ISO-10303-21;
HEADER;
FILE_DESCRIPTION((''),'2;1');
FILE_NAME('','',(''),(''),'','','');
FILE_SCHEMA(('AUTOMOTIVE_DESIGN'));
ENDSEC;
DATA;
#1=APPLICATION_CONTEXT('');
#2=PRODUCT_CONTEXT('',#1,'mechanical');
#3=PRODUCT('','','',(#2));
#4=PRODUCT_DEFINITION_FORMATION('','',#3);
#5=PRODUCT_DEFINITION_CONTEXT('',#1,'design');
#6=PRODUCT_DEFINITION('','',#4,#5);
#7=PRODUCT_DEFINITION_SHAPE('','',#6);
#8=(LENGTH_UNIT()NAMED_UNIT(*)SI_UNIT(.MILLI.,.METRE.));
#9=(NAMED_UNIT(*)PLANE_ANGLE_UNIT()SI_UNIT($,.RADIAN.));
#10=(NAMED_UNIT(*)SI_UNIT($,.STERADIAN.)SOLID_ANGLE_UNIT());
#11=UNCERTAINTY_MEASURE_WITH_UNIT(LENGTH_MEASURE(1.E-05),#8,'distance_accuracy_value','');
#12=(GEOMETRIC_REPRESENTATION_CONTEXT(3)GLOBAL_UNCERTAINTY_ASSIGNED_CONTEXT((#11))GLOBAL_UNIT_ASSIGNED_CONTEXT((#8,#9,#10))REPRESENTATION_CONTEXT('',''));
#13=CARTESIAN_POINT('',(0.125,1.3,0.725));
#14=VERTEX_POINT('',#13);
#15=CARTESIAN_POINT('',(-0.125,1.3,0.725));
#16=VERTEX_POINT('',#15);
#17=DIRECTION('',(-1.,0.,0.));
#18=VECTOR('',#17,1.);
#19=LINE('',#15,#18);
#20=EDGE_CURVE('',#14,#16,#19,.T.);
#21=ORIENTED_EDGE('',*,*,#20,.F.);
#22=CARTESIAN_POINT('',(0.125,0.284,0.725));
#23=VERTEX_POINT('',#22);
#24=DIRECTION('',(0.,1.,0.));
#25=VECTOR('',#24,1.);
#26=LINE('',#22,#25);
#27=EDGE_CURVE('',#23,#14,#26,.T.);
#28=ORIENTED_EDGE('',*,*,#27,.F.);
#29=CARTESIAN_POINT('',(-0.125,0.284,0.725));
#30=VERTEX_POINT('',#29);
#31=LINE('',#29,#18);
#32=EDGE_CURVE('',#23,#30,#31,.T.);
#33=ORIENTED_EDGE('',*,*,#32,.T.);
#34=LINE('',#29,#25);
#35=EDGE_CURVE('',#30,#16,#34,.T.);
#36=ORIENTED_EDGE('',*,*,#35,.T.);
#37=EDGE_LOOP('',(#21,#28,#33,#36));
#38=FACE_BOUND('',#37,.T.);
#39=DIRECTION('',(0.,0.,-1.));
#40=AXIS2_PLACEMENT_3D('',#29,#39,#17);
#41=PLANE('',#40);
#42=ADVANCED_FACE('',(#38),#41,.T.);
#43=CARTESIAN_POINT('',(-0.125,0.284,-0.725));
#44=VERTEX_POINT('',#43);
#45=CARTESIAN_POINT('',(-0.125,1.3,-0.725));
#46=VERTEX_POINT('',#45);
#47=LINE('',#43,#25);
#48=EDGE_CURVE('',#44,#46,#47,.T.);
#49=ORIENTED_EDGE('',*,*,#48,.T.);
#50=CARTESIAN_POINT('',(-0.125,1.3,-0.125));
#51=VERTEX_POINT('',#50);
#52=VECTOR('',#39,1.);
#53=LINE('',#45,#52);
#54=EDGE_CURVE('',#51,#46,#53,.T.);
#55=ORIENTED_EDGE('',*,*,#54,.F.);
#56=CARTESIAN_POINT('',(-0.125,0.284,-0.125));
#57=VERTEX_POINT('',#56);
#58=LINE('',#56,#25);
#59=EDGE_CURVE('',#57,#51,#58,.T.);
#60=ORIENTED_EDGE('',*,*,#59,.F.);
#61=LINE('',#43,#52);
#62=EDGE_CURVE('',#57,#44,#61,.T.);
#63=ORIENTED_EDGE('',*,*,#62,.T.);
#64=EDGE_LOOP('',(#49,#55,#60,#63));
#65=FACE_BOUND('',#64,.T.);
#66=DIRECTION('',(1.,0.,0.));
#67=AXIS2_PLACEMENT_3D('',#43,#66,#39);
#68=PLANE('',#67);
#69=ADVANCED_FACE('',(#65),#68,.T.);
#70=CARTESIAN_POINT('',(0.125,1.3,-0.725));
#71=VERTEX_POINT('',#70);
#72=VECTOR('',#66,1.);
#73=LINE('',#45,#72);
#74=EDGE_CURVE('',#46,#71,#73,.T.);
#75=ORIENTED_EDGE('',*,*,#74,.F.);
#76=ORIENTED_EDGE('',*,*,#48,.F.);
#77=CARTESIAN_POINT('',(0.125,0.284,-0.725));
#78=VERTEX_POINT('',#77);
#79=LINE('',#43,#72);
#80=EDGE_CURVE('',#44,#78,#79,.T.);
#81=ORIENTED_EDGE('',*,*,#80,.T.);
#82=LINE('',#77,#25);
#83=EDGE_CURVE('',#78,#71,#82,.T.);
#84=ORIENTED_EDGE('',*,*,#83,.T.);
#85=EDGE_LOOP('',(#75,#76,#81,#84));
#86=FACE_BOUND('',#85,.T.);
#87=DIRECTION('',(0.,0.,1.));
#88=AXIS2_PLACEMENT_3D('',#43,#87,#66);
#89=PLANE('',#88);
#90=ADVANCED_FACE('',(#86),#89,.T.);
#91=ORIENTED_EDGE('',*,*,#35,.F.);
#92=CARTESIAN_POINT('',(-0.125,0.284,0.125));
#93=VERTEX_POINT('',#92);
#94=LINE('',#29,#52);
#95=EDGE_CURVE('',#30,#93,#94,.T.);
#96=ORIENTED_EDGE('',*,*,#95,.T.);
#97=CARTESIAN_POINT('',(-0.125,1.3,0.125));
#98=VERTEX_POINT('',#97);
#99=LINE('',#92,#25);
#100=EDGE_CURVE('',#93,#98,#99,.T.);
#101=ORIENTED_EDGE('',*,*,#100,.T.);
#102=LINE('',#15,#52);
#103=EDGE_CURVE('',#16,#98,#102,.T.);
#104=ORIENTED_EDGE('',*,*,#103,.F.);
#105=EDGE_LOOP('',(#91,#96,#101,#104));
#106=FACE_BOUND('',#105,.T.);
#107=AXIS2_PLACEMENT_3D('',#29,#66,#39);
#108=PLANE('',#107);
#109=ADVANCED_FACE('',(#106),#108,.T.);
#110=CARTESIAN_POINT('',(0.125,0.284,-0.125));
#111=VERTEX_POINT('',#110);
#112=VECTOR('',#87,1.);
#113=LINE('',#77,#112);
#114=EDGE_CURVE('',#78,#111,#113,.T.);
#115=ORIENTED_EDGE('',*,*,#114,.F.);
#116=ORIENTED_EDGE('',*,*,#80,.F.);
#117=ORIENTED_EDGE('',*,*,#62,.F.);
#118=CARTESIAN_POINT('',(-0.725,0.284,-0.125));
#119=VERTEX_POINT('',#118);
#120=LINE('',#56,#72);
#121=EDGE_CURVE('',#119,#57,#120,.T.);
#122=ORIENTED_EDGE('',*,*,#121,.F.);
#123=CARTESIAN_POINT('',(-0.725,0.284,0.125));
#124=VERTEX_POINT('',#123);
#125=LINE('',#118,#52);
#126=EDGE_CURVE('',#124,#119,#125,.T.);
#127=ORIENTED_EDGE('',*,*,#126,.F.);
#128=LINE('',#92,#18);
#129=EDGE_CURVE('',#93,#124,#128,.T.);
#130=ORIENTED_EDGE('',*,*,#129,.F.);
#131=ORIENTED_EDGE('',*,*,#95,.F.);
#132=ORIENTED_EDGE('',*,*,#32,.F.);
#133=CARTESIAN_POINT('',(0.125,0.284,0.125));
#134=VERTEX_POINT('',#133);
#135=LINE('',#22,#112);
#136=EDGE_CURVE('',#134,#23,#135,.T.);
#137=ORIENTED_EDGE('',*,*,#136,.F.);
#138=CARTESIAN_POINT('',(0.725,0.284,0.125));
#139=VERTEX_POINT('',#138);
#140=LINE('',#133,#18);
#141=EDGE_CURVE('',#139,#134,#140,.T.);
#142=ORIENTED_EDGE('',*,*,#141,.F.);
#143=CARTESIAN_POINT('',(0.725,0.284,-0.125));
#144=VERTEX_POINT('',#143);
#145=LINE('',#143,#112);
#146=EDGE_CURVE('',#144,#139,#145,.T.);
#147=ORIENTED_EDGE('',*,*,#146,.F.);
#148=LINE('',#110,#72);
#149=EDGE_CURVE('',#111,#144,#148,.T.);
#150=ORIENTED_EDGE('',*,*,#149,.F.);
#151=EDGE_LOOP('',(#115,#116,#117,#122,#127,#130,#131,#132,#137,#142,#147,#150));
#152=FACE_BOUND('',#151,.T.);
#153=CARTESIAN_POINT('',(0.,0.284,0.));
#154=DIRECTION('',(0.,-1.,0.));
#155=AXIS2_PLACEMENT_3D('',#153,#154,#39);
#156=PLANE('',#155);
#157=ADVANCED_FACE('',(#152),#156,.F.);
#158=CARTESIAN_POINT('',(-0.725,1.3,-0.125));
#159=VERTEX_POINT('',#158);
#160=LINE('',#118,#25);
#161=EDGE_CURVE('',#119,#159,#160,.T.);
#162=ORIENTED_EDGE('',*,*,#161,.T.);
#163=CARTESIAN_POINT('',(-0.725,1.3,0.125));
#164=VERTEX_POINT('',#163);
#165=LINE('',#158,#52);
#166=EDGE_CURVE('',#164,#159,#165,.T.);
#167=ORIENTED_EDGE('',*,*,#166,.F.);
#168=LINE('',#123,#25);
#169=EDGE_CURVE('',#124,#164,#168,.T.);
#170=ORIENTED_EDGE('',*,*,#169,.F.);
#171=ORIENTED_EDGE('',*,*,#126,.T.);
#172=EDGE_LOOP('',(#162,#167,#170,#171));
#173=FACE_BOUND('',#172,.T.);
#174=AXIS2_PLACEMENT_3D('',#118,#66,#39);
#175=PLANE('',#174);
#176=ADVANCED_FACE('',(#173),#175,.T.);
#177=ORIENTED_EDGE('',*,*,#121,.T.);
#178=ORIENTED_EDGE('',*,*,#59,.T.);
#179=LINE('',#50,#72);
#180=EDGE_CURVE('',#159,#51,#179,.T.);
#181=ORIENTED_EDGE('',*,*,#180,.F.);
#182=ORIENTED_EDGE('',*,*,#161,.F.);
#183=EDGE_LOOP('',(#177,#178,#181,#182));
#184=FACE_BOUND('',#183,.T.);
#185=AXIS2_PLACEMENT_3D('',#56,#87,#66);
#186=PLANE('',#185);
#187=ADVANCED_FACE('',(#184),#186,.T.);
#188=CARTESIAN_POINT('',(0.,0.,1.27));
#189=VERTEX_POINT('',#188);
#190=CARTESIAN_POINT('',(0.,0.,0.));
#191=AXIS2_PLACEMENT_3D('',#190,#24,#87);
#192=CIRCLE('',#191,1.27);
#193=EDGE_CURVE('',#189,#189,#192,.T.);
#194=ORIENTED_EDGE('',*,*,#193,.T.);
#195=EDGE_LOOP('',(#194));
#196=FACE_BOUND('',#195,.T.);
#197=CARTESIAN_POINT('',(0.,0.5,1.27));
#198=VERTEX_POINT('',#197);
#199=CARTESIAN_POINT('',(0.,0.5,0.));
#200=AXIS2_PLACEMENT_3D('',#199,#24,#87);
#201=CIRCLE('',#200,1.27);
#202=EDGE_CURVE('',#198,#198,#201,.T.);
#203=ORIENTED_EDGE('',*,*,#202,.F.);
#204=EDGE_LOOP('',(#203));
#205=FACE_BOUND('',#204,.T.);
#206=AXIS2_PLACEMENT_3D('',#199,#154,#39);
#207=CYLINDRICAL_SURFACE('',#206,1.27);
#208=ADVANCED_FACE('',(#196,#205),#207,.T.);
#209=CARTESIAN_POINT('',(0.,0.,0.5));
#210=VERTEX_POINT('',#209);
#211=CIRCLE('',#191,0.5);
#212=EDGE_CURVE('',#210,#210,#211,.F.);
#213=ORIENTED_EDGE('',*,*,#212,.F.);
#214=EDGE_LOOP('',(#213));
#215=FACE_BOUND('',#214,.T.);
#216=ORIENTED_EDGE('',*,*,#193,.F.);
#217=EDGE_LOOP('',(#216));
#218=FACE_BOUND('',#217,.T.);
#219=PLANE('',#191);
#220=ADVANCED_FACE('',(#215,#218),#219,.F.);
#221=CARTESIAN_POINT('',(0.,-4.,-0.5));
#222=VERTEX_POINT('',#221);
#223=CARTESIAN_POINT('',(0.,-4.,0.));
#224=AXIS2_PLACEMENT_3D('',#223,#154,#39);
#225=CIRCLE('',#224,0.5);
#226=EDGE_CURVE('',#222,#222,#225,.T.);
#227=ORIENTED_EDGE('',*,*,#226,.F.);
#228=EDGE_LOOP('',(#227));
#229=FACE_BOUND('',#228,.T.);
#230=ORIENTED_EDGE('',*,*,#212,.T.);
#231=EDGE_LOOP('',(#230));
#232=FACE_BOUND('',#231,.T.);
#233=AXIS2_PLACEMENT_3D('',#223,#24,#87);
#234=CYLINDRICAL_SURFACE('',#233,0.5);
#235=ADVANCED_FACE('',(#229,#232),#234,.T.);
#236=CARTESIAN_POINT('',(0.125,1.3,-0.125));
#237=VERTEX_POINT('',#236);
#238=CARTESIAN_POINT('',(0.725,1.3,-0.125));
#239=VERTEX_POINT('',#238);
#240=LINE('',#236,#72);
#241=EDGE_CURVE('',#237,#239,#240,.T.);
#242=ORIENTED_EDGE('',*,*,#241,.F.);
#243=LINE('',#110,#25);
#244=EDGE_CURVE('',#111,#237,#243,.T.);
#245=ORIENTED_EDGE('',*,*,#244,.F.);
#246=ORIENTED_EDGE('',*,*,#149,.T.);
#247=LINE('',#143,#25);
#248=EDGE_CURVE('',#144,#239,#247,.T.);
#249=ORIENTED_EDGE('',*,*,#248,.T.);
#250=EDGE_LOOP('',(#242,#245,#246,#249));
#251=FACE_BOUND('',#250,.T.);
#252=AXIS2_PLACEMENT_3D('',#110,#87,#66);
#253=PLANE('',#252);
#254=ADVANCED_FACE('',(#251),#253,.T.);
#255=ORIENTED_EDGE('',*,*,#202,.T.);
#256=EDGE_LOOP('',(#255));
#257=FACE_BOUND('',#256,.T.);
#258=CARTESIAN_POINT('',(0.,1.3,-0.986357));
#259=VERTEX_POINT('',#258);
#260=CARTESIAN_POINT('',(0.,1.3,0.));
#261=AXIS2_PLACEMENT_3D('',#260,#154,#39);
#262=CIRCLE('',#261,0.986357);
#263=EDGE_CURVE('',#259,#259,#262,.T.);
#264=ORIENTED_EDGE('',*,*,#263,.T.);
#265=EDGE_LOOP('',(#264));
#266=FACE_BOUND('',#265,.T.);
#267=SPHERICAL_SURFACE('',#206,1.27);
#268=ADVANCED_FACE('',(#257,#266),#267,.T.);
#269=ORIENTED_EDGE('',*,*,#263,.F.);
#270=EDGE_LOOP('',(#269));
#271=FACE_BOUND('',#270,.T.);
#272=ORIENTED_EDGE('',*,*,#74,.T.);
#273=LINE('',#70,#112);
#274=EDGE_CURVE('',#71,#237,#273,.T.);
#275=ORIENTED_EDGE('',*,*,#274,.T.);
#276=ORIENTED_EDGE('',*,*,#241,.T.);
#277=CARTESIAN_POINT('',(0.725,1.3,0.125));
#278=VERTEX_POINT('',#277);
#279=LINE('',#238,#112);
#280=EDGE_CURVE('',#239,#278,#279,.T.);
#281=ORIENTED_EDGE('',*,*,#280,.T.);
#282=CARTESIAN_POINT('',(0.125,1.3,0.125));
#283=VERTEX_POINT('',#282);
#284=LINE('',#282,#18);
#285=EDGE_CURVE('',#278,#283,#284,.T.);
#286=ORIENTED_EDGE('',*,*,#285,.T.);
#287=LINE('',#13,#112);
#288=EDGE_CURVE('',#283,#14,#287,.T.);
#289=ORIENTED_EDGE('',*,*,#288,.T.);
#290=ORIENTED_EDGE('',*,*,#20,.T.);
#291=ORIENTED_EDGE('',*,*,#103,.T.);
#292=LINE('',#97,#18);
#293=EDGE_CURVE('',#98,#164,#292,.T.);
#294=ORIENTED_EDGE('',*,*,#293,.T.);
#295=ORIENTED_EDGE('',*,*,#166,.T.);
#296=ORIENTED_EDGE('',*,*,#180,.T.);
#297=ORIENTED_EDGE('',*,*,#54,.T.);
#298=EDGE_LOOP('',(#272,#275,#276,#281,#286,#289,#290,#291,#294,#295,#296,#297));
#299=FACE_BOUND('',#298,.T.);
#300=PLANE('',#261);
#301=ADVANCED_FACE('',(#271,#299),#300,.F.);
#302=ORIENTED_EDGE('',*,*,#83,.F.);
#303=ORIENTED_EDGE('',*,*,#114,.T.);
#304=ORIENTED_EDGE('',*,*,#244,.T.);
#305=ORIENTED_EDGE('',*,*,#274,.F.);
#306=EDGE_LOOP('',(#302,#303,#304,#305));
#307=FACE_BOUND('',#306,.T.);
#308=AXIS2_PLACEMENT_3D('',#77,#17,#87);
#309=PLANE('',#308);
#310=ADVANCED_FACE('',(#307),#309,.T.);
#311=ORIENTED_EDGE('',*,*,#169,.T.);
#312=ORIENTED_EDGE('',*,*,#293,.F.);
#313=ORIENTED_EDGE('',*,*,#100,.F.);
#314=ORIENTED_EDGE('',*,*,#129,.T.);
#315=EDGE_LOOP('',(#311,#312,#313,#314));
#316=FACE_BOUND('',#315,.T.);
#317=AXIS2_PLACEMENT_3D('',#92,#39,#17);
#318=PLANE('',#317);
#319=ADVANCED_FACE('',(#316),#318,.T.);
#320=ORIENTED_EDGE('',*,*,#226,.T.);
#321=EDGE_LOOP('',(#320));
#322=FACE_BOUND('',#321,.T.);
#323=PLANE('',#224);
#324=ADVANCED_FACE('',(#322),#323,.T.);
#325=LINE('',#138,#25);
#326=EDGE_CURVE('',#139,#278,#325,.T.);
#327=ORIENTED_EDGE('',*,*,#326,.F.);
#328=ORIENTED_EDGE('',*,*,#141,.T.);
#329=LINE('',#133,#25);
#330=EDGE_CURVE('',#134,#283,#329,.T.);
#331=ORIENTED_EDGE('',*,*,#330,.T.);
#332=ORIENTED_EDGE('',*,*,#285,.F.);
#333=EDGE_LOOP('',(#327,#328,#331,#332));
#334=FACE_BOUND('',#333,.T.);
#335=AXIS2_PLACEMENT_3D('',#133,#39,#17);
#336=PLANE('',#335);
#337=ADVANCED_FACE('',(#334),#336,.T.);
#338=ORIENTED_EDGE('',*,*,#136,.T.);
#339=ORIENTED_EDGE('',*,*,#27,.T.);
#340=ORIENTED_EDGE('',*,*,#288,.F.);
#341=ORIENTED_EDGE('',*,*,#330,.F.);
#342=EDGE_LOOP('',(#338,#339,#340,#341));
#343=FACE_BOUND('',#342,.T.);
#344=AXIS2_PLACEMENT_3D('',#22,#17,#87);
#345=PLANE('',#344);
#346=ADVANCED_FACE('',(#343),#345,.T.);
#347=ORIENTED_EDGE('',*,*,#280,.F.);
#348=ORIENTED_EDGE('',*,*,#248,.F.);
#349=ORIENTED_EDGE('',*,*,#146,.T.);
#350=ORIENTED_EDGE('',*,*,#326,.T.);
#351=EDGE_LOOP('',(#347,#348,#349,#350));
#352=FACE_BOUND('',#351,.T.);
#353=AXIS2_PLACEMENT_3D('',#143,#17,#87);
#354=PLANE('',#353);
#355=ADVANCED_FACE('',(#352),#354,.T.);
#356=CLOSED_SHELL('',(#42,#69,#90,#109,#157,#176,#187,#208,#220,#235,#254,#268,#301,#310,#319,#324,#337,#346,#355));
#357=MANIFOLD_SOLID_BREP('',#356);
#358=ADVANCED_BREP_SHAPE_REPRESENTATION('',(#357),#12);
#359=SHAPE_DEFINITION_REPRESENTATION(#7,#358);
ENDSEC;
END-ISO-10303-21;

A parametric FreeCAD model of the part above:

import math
import FreeCAD as App
import Part
import Sketcher
from FreeCAD import Vector
Q = App.Units.Quantity

doc = App.newDocument("Part")
params = doc.addObject("Spreadsheet::Sheet", "Params")
for row, (alias, value) in enumerate([
    ("sketch1_diameter", "2.54 mm"),
    ("pad1_length", "0.5 mm"),
    ("sketch2_radius", "1.27 mm"),
    ("revolution_angle", "180 deg"),
    ("sketch3_diameter", "5 mm"),
    ("pocket1_length", "1.016 mm"),
    ("sketch4_width", "0.6 mm"),
    ("sketch4_width2", "0.25 mm"),
    ("pocket2_length", "1.016 mm"),
    ("sketch5_diameter", "1 mm"),
    ("pad2_length", "4 mm"),
], start=1):
    params.set(f"A{row}", alias)
    params.set(f"B{row}", "=" + value)
    params.setAlias(f"B{row}", alias)

body = doc.addObject("PartDesign::Body", "Body")

# Sketch on XZ plane
sketch1 = body.newObject("Sketcher::SketchObject", "Sketch")
sketch1.AttachmentSupport = (doc.getObject("XZ_Plane"), [""])
sketch1.MapMode = "FlatFace"
sketch1.addGeometry(Part.Circle(Vector(0, 0, 0), Vector(0, 0, 1), 1.27), False)
sketch1.addConstraint(Sketcher.Constraint("Coincident", 0, 3, -1, 1))
sketch1.addConstraint(Sketcher.Constraint("Diameter", 0, Q("2.54 mm")))
sketch1.setExpression("Constraints[1]", "Params.sketch1_diameter")
pad1 = body.newObject("PartDesign::Pad", "Pad")
pad1.Profile = sketch1
pad1.setExpression("Length", "Params.pad1_length")
pad1.Reversed = True

# Sketch on XZ plane
sketch2 = body.newObject("Sketcher::SketchObject", "Sketch001")
sketch2.AttachmentSupport = (doc.getObject("XZ_Plane"), [""])
sketch2.MapMode = "FlatFace"
sketch2.AttachmentOffset = App.Placement(Vector(0, 0, -0.5), App.Rotation())
sketch2.addGeometry(Part.LineSegment(Vector(0, 1.27, 0), Vector(0, -1.27, 0)), False)
sketch2.addGeometry(Part.ArcOfCircle(Part.Circle(Vector(0, 0, 0), Vector(0, 0, 1), 1.27), math.radians(90), math.radians(270)), False)
sketch2.addConstraint(Sketcher.Constraint("Coincident", 0, 1, 1, 1))
sketch2.addConstraint(Sketcher.Constraint("Coincident", 1, 2, 0, 2))
sketch2.addConstraint(Sketcher.Constraint("Vertical", 0))
sketch2.addConstraint(Sketcher.Constraint("Coincident", 1, 3, -1, 1))
sketch2.addConstraint(Sketcher.Constraint("PointOnObject", 0, 1, -2))
sketch2.addConstraint(Sketcher.Constraint("Radius", 1, Q("1.27 mm")))
sketch2.setExpression("Constraints[5]", "Params.sketch2_radius")
revolution = body.newObject("PartDesign::Revolution", "Revolution")
revolution.Profile = sketch2
revolution.ReferenceAxis = (sketch2, ["V_Axis"])
revolution.setExpression("Angle", "Params.revolution_angle")
revolution.Reversed = True

# Sketch on XZ plane
sketch3 = body.newObject("Sketcher::SketchObject", "Sketch002")
sketch3.AttachmentSupport = (doc.getObject("XZ_Plane"), [""])
sketch3.MapMode = "FlatFace"
sketch3.AttachmentOffset = App.Placement(Vector(0, 0, -1.3), App.Rotation())
sketch3.addGeometry(Part.Circle(Vector(0, 0, 0), Vector(0, 0, 1), 2.5), False)
sketch3.addConstraint(Sketcher.Constraint("Coincident", 0, 3, -1, 1))
sketch3.addConstraint(Sketcher.Constraint("Diameter", 0, Q("5 mm")))
sketch3.setExpression("Constraints[1]", "Params.sketch3_diameter")
pocket1 = body.newObject("PartDesign::Pocket", "Pocket")
pocket1.Profile = sketch3
pocket1.setExpression("Length", "Params.pocket1_length")

# Sketch on XZ plane
sketch4 = body.newObject("Sketcher::SketchObject", "Sketch003")
sketch4.AttachmentSupport = (doc.getObject("XZ_Plane"), [""])
sketch4.MapMode = "FlatFace"
sketch4.AttachmentOffset = App.Placement(Vector(0, 0, -1.3), App.Rotation())
sketch4.addGeometry(Part.LineSegment(Vector(-0.125, -0.125, 0), Vector(-0.125, -0.725, 0)), False)
sketch4.addGeometry(Part.LineSegment(Vector(-0.125, -0.725, 0), Vector(0.125, -0.725, 0)), False)
sketch4.addGeometry(Part.LineSegment(Vector(0.125, -0.725, 0), Vector(0.125, -0.125, 0)), False)
sketch4.addGeometry(Part.LineSegment(Vector(0.125, -0.125, 0), Vector(0.725, -0.125, 0)), False)
sketch4.addGeometry(Part.LineSegment(Vector(0.725, -0.125, 0), Vector(0.725, 0.125, 0)), False)
sketch4.addGeometry(Part.LineSegment(Vector(0.725, 0.125, 0), Vector(0.125, 0.125, 0)), False)
sketch4.addGeometry(Part.LineSegment(Vector(0.125, 0.125, 0), Vector(0.125, 0.725, 0)), False)
sketch4.addGeometry(Part.LineSegment(Vector(0.125, 0.725, 0), Vector(-0.125, 0.725, 0)), False)
sketch4.addGeometry(Part.LineSegment(Vector(-0.125, 0.725, 0), Vector(-0.125, 0.125, 0)), False)
sketch4.addGeometry(Part.LineSegment(Vector(-0.125, 0.125, 0), Vector(-0.725, 0.125, 0)), False)
sketch4.addGeometry(Part.LineSegment(Vector(-0.725, 0.125, 0), Vector(-0.725, -0.125, 0)), False)
sketch4.addGeometry(Part.LineSegment(Vector(-0.725, -0.125, 0), Vector(-0.125, -0.125, 0)), False)
sketch4.addConstraint(Sketcher.Constraint("Coincident", 0, 2, 1, 1))
sketch4.addConstraint(Sketcher.Constraint("Coincident", 1, 2, 2, 1))
sketch4.addConstraint(Sketcher.Constraint("Coincident", 2, 2, 3, 1))
sketch4.addConstraint(Sketcher.Constraint("Coincident", 3, 2, 4, 1))
sketch4.addConstraint(Sketcher.Constraint("Coincident", 4, 2, 5, 1))
sketch4.addConstraint(Sketcher.Constraint("Coincident", 5, 2, 6, 1))
sketch4.addConstraint(Sketcher.Constraint("Coincident", 6, 2, 7, 1))
sketch4.addConstraint(Sketcher.Constraint("Coincident", 7, 2, 8, 1))
sketch4.addConstraint(Sketcher.Constraint("Coincident", 8, 2, 9, 1))
sketch4.addConstraint(Sketcher.Constraint("Coincident", 9, 2, 10, 1))
sketch4.addConstraint(Sketcher.Constraint("Coincident", 10, 2, 11, 1))
sketch4.addConstraint(Sketcher.Constraint("Coincident", 11, 2, 0, 1))
sketch4.addConstraint(Sketcher.Constraint("Vertical", 0))
sketch4.addConstraint(Sketcher.Constraint("Horizontal", 1))
sketch4.addConstraint(Sketcher.Constraint("Vertical", 2))
sketch4.addConstraint(Sketcher.Constraint("Horizontal", 3))
sketch4.addConstraint(Sketcher.Constraint("Vertical", 4))
sketch4.addConstraint(Sketcher.Constraint("Horizontal", 5))
sketch4.addConstraint(Sketcher.Constraint("Vertical", 6))
sketch4.addConstraint(Sketcher.Constraint("Horizontal", 7))
sketch4.addConstraint(Sketcher.Constraint("Vertical", 8))
sketch4.addConstraint(Sketcher.Constraint("Horizontal", 9))
sketch4.addConstraint(Sketcher.Constraint("Vertical", 10))
sketch4.addConstraint(Sketcher.Constraint("Horizontal", 11))
sketch4.addConstraint(Sketcher.Constraint("Symmetric", 0, 2, 6, 2, -1, 1))
sketch4.addConstraint(Sketcher.Constraint("Symmetric", 2, 2, 8, 2, -1, 1))
sketch4.addConstraint(Sketcher.Constraint("Symmetric", 4, 2, 10, 2, -1, 1))
sketch4.addConstraint(Sketcher.Constraint("Symmetric", 5, 2, 8, 2, -2))
sketch4.addConstraint(Sketcher.Constraint("Equal", 11, 0))
sketch4.addConstraint(Sketcher.Constraint("Equal", 7, 4))
sketch4.addConstraint(Sketcher.Constraint("DistanceX", 3, 1, 3, 2, Q("0.6 mm")))
sketch4.addConstraint(Sketcher.Constraint("DistanceX", 1, 1, 1, 2, Q("0.25 mm")))
sketch4.setExpression("Constraints[30]", "Params.sketch4_width")
sketch4.setExpression("Constraints[31]", "Params.sketch4_width2")
pocket2 = body.newObject("PartDesign::Pocket", "Pocket001")
pocket2.Profile = sketch4
pocket2.setExpression("Length", "Params.pocket2_length")
pocket2.Reversed = True

# Sketch on XZ plane
sketch5 = body.newObject("Sketcher::SketchObject", "Sketch004")
sketch5.AttachmentSupport = (doc.getObject("XZ_Plane"), [""])
sketch5.MapMode = "FlatFace"
sketch5.addGeometry(Part.Circle(Vector(0, 0, 0), Vector(0, 0, 1), 0.5), False)
sketch5.addConstraint(Sketcher.Constraint("Coincident", 0, 3, -1, 1))
sketch5.addConstraint(Sketcher.Constraint("Diameter", 0, Q("1 mm")))
sketch5.setExpression("Constraints[1]", "Params.sketch5_diameter")
pad2 = body.newObject("PartDesign::Pad", "Pad001")
pad2.Profile = sketch5
pad2.setExpression("Length", "Params.pad2_length")

doc.recompute()
